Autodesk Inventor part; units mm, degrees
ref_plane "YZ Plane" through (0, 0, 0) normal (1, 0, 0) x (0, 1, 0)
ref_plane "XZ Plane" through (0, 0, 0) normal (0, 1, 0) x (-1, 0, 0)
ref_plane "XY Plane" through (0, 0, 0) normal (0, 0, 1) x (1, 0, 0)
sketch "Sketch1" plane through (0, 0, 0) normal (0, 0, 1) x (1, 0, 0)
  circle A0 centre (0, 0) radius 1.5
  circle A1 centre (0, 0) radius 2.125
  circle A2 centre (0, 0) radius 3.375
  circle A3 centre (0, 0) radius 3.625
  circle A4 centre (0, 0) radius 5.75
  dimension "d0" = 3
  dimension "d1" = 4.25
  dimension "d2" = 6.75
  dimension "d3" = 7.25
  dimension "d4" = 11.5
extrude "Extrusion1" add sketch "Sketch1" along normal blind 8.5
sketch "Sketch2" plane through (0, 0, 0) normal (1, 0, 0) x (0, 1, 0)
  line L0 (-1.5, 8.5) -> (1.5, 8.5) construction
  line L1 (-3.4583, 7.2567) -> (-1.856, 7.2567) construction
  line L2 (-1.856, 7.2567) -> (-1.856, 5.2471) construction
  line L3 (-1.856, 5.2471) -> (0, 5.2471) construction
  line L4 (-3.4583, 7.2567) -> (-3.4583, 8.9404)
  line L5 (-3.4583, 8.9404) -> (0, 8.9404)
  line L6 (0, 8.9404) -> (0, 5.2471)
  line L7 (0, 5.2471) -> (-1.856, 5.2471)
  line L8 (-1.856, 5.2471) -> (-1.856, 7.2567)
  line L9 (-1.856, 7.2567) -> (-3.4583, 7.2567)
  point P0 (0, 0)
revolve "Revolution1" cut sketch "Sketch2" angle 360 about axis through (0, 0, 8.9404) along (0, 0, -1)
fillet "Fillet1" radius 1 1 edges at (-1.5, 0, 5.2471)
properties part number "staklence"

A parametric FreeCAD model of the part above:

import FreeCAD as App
import Part
import Sketcher
Q = App.Units.Quantity


def edges_at(feature, points):
    """Names of the edges that pass closest to the given points."""
    edges = feature.Shape.Edges
    near = lambda p: min(range(len(edges)), key=lambda i: edges[i].distToShape(Part.Vertex(*p))[0])
    return sorted({f"Edge{near(p) + 1}" for p in points})

doc = App.newDocument("Part")
body = doc.addObject("PartDesign::Body", "Body")
body.AllowCompound = True

# Sketch on XY plane
sketch1 = doc.addObject("Sketcher::SketchObject", "Sketch")
body.addObject(sketch1)
sketch1.AttachmentSupport = (doc.XY_Plane, [""])
sketch1.MapMode = "FlatFace"
sketch1.addGeometry([
    Part.Circle(App.Vector(0, 0, 0), App.Vector(0, 0, 1), 1.5),  # 0
    Part.Circle(App.Vector(0, 0, 0), App.Vector(0, 0, 1), 3.4),  # 1
    Part.Circle(App.Vector(0, 0, 0), App.Vector(0, 0, 1), 2.1),  # 2
    Part.Circle(App.Vector(0, 0, 0), App.Vector(0, 0, 1), 5.8),  # 3
    Part.Circle(App.Vector(0, 0, 0), App.Vector(0, 0, 1), 3.6),  # 4
], False)
sketch1.addConstraint([
    Sketcher.Constraint("Coincident", 0, 3, -1, 1),
    Sketcher.Constraint("Coincident", 1, 3, -1, 1),
    Sketcher.Constraint("Coincident", 2, 3, -1, 1),
    Sketcher.Constraint("Coincident", 3, 3, -1, 1),
    Sketcher.Constraint("Coincident", 4, 3, -1, 1),
    Sketcher.Constraint("Diameter", 0, Q("3 mm")),
    Sketcher.Constraint("Diameter", 3, Q("11.5 mm")),
    Sketcher.Constraint("Diameter", 1, Q("6.75 mm")),
    Sketcher.Constraint("Diameter", 2, Q("4.25 mm")),
    Sketcher.Constraint("Diameter", 4, Q("7.25 mm")),
])
pad1 = doc.addObject("PartDesign::Pad", "Pad")
body.addObject(pad1)
pad1.Profile = sketch1
pad1.Length = 8.5

# Sketch on YZ plane
sketch2 = doc.addObject("Sketcher::SketchObject", "Sketch001")
body.addObject(sketch2)
sketch2.AttachmentSupport = (doc.YZ_Plane, [""])
sketch2.MapMode = "FlatFace"
sketch2.addGeometry([
    Part.LineSegment(App.Vector(-3.5, 8.9, 0), App.Vector(-3.5, 7.3, 0)),  # 0
    Part.LineSegment(App.Vector(-3.5, 7.3, 0), App.Vector(-1.9, 7.3, 0)),  # 1
    Part.LineSegment(App.Vector(-1.9, 7.3, 0), App.Vector(-1.9, 5.2, 0)),  # 2
    Part.LineSegment(App.Vector(-1.9, 5.2, 0), App.Vector(0, 5.2, 0)),  # 3
    Part.LineSegment(App.Vector(0, 5.2, 0), App.Vector(0, 8.9, 0)),  # 4
    Part.LineSegment(App.Vector(0, 8.9, 0), App.Vector(-3.5, 8.9, 0)),  # 5
], False)
sketch2.addConstraint([
    Sketcher.Constraint("Coincident", 0, 2, 1, 1),
    Sketcher.Constraint("Coincident", 1, 2, 2, 1),
    Sketcher.Constraint("Coincident", 2, 2, 3, 1),
    Sketcher.Constraint("Coincident", 3, 2, 4, 1),
    Sketcher.Constraint("Coincident", 4, 2, 5, 1),
    Sketcher.Constraint("Coincident", 5, 2, 0, 1),
    Sketcher.Constraint("Vertical", 0),
    Sketcher.Constraint("Horizontal", 1),
    Sketcher.Constraint("Vertical", 2),
    Sketcher.Constraint("Horizontal", 3),
    Sketcher.Constraint("Vertical", 4),
    Sketcher.Constraint("Horizontal", 5),
    Sketcher.Constraint("PointOnObject", 3, 2, -2),
    Sketcher.Constraint("DistanceX", 3, 1, 3, 2, Q("1.856 mm")),
    Sketcher.Constraint("DistanceX", 1, 1, 1, 2, Q("1.6023 mm")),
    Sketcher.Constraint("DistanceY", 0, 2, 0, 1, Q("1.6837 mm")),
    Sketcher.Constraint("DistanceY", 2, 2, 2, 1, Q("2.0096 mm")),
    Sketcher.Constraint("DistanceY", -1, 1, 2, 2, Q("5.247 mm")),
])
groove = doc.addObject("PartDesign::Groove", "Groove")
body.addObject(groove)
groove.Profile = sketch2
groove.ReferenceAxis = (sketch2, ["V_Axis"])
groove.Angle = 360
doc.recompute()

fillet = doc.addObject("PartDesign::Fillet", "Fillet")
body.addObject(fillet)
fillet.Base = (groove, edges_at(groove, [(-1.5, 0, 5.247)]))
fillet.Radius = 1

doc.recompute()
